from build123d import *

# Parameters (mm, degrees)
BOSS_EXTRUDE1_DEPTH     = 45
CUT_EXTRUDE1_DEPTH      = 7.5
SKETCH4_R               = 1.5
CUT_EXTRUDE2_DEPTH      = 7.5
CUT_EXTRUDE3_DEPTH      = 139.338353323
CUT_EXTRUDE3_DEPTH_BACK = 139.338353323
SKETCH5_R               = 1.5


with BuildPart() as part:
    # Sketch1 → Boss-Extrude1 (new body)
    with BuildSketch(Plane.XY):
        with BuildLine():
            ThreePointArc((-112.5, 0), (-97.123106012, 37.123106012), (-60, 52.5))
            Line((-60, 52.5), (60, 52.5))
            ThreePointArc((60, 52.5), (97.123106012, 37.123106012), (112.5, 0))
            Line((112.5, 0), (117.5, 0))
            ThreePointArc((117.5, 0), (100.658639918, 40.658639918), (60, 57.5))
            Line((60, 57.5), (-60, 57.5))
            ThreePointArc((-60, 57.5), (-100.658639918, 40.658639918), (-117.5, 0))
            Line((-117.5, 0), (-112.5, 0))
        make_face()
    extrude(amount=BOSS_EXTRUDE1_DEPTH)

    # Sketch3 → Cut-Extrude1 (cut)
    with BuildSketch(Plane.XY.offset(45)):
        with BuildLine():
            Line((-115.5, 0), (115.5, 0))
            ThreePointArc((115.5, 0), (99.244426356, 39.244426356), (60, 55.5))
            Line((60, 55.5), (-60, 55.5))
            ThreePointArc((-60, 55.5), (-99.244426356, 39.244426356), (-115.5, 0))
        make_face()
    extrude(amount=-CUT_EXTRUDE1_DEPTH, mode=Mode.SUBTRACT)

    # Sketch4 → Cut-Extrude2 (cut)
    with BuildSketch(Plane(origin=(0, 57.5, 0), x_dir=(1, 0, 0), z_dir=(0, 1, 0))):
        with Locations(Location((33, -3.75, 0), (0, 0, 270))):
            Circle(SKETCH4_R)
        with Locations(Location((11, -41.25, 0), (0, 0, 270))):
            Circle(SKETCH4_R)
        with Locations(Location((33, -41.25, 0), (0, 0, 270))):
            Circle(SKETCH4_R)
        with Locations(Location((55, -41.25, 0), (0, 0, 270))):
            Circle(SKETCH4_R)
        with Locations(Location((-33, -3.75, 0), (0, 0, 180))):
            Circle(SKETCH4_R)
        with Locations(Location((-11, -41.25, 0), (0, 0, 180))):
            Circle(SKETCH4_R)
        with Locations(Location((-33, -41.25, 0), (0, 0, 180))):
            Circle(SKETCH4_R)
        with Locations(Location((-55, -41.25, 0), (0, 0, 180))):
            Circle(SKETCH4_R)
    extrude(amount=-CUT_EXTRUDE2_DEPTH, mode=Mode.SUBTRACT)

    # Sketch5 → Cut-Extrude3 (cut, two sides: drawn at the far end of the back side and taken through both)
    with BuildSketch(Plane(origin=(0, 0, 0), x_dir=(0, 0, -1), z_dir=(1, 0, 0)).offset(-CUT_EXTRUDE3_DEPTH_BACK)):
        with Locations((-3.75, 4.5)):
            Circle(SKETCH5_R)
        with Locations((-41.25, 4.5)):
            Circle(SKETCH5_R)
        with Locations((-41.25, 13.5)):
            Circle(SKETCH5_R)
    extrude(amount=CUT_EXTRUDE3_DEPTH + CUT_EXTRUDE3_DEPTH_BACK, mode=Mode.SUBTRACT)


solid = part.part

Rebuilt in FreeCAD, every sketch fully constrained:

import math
import FreeCAD as App
import Part
import Sketcher
from FreeCAD import Vector

doc = App.newDocument("Part")
params = doc.addObject("Spreadsheet::Sheet", "Params")
for row, (alias, value) in enumerate([
    ("sketch1_radius", "52.5 mm"),
    ("sketch1_radius2", "57.5 mm"),
    ("sketch1_width", "120 mm"),
    ("pad1_length", "45 mm"),
    ("sketch2_radius", "55.5 mm"),
    ("sketch2_width", "231 mm"),
    ("pocket1_length", "7.5 mm"),
    ("sketch3_diameter", "3 mm"),
    ("pocket2_length", "7.5 mm"),
    ("sketch4_diameter", "3 mm"),
], start=1):
    params.set(f"A{row}", alias)
    params.set(f"B{row}", "=" + value)
    params.setAlias(f"B{row}", alias)

body = doc.addObject("PartDesign::Body", "Body")

sketch1 = doc.addObject("Sketcher::SketchObject", "Sketch")
body.addObject(sketch1)
sketch1.AttachmentSupport = (doc.XY_Plane, [""])
sketch1.MapMode = "FlatFace"
sketch1.addGeometry([
    Part.ArcOfCircle(Part.Circle(Vector(-60, 0, 0), Vector(0, 0, 1), 53), math.radians(90), math.radians(180)),
    Part.LineSegment(Vector(-60, 52, 0), Vector(60, 52, 0)),
    Part.ArcOfCircle(Part.Circle(Vector(60, 0, 0), Vector(0, 0, 1), 53), math.radians(0), math.radians(90)),
    Part.LineSegment(Vector(112, 0, 0), Vector(118, 0, 0)),
    Part.ArcOfCircle(Part.Circle(Vector(60, 0, 0), Vector(0, 0, 1), 58), math.radians(0), math.radians(90)),
    Part.LineSegment(Vector(60, 58, 0), Vector(-60, 58, 0)),
    Part.ArcOfCircle(Part.Circle(Vector(-60, 0, 0), Vector(0, 0, 1), 58), math.radians(90), math.radians(180)),
    Part.LineSegment(Vector(-118, 0, 0), Vector(-112, 0, 0)),
], False)
sketch1.addConstraint([
    Sketcher.Constraint("Tangent", 0, 1, 1, 1),
    Sketcher.Constraint("Tangent", 1, 2, 2, 2),
    Sketcher.Constraint("Coincident", 2, 1, 3, 1),
    Sketcher.Constraint("Coincident", 3, 2, 4, 1),
    Sketcher.Constraint("Tangent", 4, 2, 5, 1),
    Sketcher.Constraint("Tangent", 5, 2, 6, 1),
    Sketcher.Constraint("Coincident", 6, 2, 7, 1),
    Sketcher.Constraint("Coincident", 7, 2, 0, 2),
    Sketcher.Constraint("Horizontal", 1),
    Sketcher.Constraint("Horizontal", 3),
    Sketcher.Constraint("Horizontal", 5),
    Sketcher.Constraint("Horizontal", 7),
    Sketcher.Constraint("Coincident", 4, 3, 2, 3),
    Sketcher.Constraint("Coincident", 6, 3, 0, 3),
    Sketcher.Constraint("Equal", 0, 2),
    Sketcher.Constraint("Symmetric", 0, 3, 2, 3, -1, 1),
    Sketcher.Constraint("PointOnObject", 2, 1, -1),
    Sketcher.Constraint("PointOnObject", 6, 2, -1),
    Sketcher.Constraint("Radius", 0, 52.5),
    Sketcher.Constraint("Radius", 4, 57.5),
    Sketcher.Constraint("DistanceX", 1, 1, 1, 2, 120.0),
])
sketch1.setExpression("Constraints[18]", "Params.sketch1_radius")
sketch1.setExpression("Constraints[19]", "Params.sketch1_radius2")
sketch1.setExpression("Constraints[20]", "Params.sketch1_width")
pad1 = doc.addObject("PartDesign::Pad", "Pad")
body.addObject(pad1)
pad1.Profile = sketch1
pad1.setExpression("Length", "Params.pad1_length")

sketch2 = doc.addObject("Sketcher::SketchObject", "Sketch001")
body.addObject(sketch2)
sketch2.AttachmentSupport = (doc.XY_Plane, [""])
sketch2.MapMode = "FlatFace"
sketch2.AttachmentOffset = App.Placement(Vector(0, 0, 45), App.Rotation())
sketch2.addGeometry([
    Part.LineSegment(Vector(-116, 0, 0), Vector(116, 0, 0)),
    Part.ArcOfCircle(Part.Circle(Vector(60, 0, 0), Vector(0, 0, 1), 55), math.radians(0), math.radians(90)),
    Part.LineSegment(Vector(60, 56, 0), Vector(-60, 56, 0)),
    Part.ArcOfCircle(Part.Circle(Vector(-60, 0, 0), Vector(0, 0, 1), 55), math.radians(90), math.radians(180)),
], False)
sketch2.addConstraint([
    Sketcher.Constraint("Coincident", 0, 2, 1, 1),
    Sketcher.Constraint("Tangent", 1, 2, 2, 1),
    Sketcher.Constraint("Tangent", 2, 2, 3, 1),
    Sketcher.Constraint("Coincident", 3, 2, 0, 1),
    Sketcher.Constraint("Horizontal", 0),
    Sketcher.Constraint("Horizontal", 2),
    Sketcher.Constraint("Equal", 1, 3),
    Sketcher.Constraint("Symmetric", 1, 3, 3, 3, -1, 1),
    Sketcher.Constraint("PointOnObject", 0, 2, -1),
    Sketcher.Constraint("Radius", 1, 55.5),
    Sketcher.Constraint("DistanceX", 0, 1, 0, 2, 231.0),
])
sketch2.setExpression("Constraints[9]", "Params.sketch2_radius")
sketch2.setExpression("Constraints[10]", "Params.sketch2_width")
pocket1 = doc.addObject("PartDesign::Pocket", "Pocket")
body.addObject(pocket1)
pocket1.Profile = sketch2
pocket1.setExpression("Length", "Params.pocket1_length")

sketch3 = doc.addObject("Sketcher::SketchObject", "Sketch002")
body.addObject(sketch3)
sketch3.AttachmentSupport = (doc.XZ_Plane, [""])
sketch3.MapMode = "FlatFace"
sketch3.AttachmentOffset = App.Placement(Vector(0, 0, -57.5), App.Rotation())
sketch3.addGeometry([
    Part.Circle(Vector(33, 3.8, 0), Vector(0, 0, 1), 1.5),
    Part.Circle(Vector(11, 41.2, 0), Vector(0, 0, 1), 1.5),
    Part.Circle(Vector(33, 41.2, 0), Vector(0, 0, 1), 1.5),
    Part.Circle(Vector(55, 41.2, 0), Vector(0, 0, 1), 1.5),
    Part.Circle(Vector(-33, 3.8, 0), Vector(0, 0, 1), 1.5),
    Part.Circle(Vector(-11, 41.2, 0), Vector(0, 0, 1), 1.5),
    Part.Circle(Vector(-33, 41.2, 0), Vector(0, 0, 1), 1.5),
    Part.Circle(Vector(-55, 41.2, 0), Vector(0, 0, 1), 1.5),
], False)
sketch3.addConstraint([
    Sketcher.Constraint("Equal", 0, 1),
    Sketcher.Constraint("Equal", 1, 2),
    Sketcher.Constraint("Equal", 2, 3),
    Sketcher.Constraint("Equal", 3, 4),
    Sketcher.Constraint("Equal", 4, 5),
    Sketcher.Constraint("Equal", 5, 6),
    Sketcher.Constraint("Equal", 6, 7),
    Sketcher.Constraint("Symmetric", 0, 3, 4, 3, -2),
    Sketcher.Constraint("Symmetric", 1, 3, 5, 3, -2),
    Sketcher.Constraint("Symmetric", 2, 3, 6, 3, -2),
    Sketcher.Constraint("Symmetric", 3, 3, 7, 3, -2),
    Sketcher.Constraint("Horizontal", 1, 3, 2, 3),
    Sketcher.Constraint("Horizontal", 2, 3, 3, 3),
    Sketcher.Constraint("Vertical", 0, 3, 2, 3),
    Sketcher.Constraint("Diameter", 0, 3.0),
    Sketcher.Constraint("DistanceX", -1, 1, 0, 3, 33.0),
    Sketcher.Constraint("DistanceX", -1, 1, 1, 3, 11.0),
    Sketcher.Constraint("DistanceX", -1, 1, 3, 3, 55.0),
    Sketcher.Constraint("DistanceY", 0, 3, 1, 3, 37.5),
    Sketcher.Constraint("DistanceY", -1, 1, 0, 3, 3.75),
])
sketch3.setExpression("Constraints[14]", "Params.sketch3_diameter")
pocket2 = doc.addObject("PartDesign::Pocket", "Pocket001")
body.addObject(pocket2)
pocket2.Profile = sketch3
pocket2.setExpression("Length", "Params.pocket2_length")
pocket2.Reversed = True

sketch4 = doc.addObject("Sketcher::SketchObject", "Sketch003")
body.addObject(sketch4)
sketch4.AttachmentSupport = (doc.YZ_Plane, [""])
sketch4.MapMode = "FlatFace"
sketch4.addGeometry([
    Part.Circle(Vector(4.5, 3.8, 0), Vector(0, 0, 1), 1.5),
    Part.Circle(Vector(4.5, 41.2, 0), Vector(0, 0, 1), 1.5),
    Part.Circle(Vector(13.5, 41.2, 0), Vector(0, 0, 1), 1.5),
], False)
sketch4.addConstraint([
    Sketcher.Constraint("Equal", 0, 1),
    Sketcher.Constraint("Equal", 1, 2),
    Sketcher.Constraint("Horizontal", 1, 3, 2, 3),
    Sketcher.Constraint("Vertical", 0, 3, 1, 3),
    Sketcher.Constraint("Diameter", 0, 3.0),
    Sketcher.Constraint("DistanceX", 1, 3, 2, 3, 9.0),
    Sketcher.Constraint("DistanceX", -1, 1, 0, 3, 4.5),
    Sketcher.Constraint("DistanceY", 0, 3, 1, 3, 37.5),
    Sketcher.Constraint("DistanceY", -1, 1, 0, 3, 3.75),
])
sketch4.setExpression("Constraints[4]", "Params.sketch4_diameter")
pocket3 = doc.addObject("PartDesign::Pocket", "Pocket002")
body.addObject(pocket3)
pocket3.Profile = sketch4
pocket3.Type = "ThroughAll"
pocket3.Midplane = True

doc.recompute()
